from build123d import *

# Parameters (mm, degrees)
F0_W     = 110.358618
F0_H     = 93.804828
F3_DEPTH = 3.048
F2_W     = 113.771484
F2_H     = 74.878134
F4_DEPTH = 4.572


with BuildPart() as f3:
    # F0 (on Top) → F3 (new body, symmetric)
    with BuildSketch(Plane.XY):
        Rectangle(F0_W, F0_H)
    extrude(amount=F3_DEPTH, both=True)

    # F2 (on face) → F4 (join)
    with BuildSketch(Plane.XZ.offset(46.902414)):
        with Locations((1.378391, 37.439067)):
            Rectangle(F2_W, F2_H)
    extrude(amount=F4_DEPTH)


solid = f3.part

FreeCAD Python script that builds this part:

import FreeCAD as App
import Part
import Sketcher
from FreeCAD import Vector
Q = App.Units.Quantity


def add_polygon(sketch, points):
    """Adds a closed chain of lines whose ends are joined by coincident constraints."""
    first, n = sketch.GeometryCount, len(points)
    for a, b in zip(points, points[1:] + points[:1]):
        sketch.addGeometry(Part.LineSegment(App.Vector(*a, 0), App.Vector(*b, 0)), False)
    for i in range(n):
        sketch.addConstraint(Sketcher.Constraint("Coincident", first + i, 2, first + (i + 1) % n, 1))

doc = App.newDocument("Part")
body = doc.addObject("PartDesign::Body", "Body")

# Sketch on XY plane
sketch1 = doc.addObject("Sketcher::SketchObject", "Sketch")
body.addObject(sketch1)
sketch1.AttachmentSupport = (doc.XY_Plane, [""])
sketch1.MapMode = "FlatFace"
add_polygon(sketch1, [(-55, 47), (-55, -47), (55, -47), (55, 47)])  # lines 0-3
sketch1.addConstraint([
    Sketcher.Constraint("Vertical", 0),
    Sketcher.Constraint("Horizontal", 1),
    Sketcher.Constraint("Vertical", 2),
    Sketcher.Constraint("Horizontal", 3),
    Sketcher.Constraint("Symmetric", 0, 2, 2, 2, -1, 1),
    Sketcher.Constraint("DistanceX", 1, 1, 1, 2, 110.358618),
    Sketcher.Constraint("DistanceY", 0, 2, 0, 1, 93.804828),
])
pad1 = doc.addObject("PartDesign::Pad", "Pad")
body.addObject(pad1)
pad1.Profile = sketch1
pad1.Length = Q("0.24 in")
pad1.Midplane = True

# Sketch on XZ plane
sketch2 = doc.addObject("Sketcher::SketchObject", "Sketch001")
body.addObject(sketch2)
sketch2.AttachmentSupport = (doc.XZ_Plane, [""])
sketch2.MapMode = "FlatFace"
sketch2.AttachmentOffset = App.Placement(Vector(0, 0, 46.902414), App.Rotation())
add_polygon(sketch2, [(-56, 75), (-56, 0), (58, 0), (58, 75)])  # lines 0-3
sketch2.addConstraint([
    Sketcher.Constraint("Vertical", 0),
    Sketcher.Constraint("Horizontal", 1),
    Sketcher.Constraint("Vertical", 2),
    Sketcher.Constraint("Horizontal", 3),
    Sketcher.Constraint("PointOnObject", 0, 2, -1),
    Sketcher.Constraint("DistanceX", 1, 1, 1, 2, 113.771484),
    Sketcher.Constraint("DistanceY", 0, 2, 0, 1, 74.878134),
    Sketcher.Constraint("DistanceX", 0, 2, -1, 1, 55.507351),
])
pad2 = doc.addObject("PartDesign::Pad", "Pad001")
body.addObject(pad2)
pad2.Profile = sketch2
pad2.Length = Q("0.18 in")

doc.recompute()
